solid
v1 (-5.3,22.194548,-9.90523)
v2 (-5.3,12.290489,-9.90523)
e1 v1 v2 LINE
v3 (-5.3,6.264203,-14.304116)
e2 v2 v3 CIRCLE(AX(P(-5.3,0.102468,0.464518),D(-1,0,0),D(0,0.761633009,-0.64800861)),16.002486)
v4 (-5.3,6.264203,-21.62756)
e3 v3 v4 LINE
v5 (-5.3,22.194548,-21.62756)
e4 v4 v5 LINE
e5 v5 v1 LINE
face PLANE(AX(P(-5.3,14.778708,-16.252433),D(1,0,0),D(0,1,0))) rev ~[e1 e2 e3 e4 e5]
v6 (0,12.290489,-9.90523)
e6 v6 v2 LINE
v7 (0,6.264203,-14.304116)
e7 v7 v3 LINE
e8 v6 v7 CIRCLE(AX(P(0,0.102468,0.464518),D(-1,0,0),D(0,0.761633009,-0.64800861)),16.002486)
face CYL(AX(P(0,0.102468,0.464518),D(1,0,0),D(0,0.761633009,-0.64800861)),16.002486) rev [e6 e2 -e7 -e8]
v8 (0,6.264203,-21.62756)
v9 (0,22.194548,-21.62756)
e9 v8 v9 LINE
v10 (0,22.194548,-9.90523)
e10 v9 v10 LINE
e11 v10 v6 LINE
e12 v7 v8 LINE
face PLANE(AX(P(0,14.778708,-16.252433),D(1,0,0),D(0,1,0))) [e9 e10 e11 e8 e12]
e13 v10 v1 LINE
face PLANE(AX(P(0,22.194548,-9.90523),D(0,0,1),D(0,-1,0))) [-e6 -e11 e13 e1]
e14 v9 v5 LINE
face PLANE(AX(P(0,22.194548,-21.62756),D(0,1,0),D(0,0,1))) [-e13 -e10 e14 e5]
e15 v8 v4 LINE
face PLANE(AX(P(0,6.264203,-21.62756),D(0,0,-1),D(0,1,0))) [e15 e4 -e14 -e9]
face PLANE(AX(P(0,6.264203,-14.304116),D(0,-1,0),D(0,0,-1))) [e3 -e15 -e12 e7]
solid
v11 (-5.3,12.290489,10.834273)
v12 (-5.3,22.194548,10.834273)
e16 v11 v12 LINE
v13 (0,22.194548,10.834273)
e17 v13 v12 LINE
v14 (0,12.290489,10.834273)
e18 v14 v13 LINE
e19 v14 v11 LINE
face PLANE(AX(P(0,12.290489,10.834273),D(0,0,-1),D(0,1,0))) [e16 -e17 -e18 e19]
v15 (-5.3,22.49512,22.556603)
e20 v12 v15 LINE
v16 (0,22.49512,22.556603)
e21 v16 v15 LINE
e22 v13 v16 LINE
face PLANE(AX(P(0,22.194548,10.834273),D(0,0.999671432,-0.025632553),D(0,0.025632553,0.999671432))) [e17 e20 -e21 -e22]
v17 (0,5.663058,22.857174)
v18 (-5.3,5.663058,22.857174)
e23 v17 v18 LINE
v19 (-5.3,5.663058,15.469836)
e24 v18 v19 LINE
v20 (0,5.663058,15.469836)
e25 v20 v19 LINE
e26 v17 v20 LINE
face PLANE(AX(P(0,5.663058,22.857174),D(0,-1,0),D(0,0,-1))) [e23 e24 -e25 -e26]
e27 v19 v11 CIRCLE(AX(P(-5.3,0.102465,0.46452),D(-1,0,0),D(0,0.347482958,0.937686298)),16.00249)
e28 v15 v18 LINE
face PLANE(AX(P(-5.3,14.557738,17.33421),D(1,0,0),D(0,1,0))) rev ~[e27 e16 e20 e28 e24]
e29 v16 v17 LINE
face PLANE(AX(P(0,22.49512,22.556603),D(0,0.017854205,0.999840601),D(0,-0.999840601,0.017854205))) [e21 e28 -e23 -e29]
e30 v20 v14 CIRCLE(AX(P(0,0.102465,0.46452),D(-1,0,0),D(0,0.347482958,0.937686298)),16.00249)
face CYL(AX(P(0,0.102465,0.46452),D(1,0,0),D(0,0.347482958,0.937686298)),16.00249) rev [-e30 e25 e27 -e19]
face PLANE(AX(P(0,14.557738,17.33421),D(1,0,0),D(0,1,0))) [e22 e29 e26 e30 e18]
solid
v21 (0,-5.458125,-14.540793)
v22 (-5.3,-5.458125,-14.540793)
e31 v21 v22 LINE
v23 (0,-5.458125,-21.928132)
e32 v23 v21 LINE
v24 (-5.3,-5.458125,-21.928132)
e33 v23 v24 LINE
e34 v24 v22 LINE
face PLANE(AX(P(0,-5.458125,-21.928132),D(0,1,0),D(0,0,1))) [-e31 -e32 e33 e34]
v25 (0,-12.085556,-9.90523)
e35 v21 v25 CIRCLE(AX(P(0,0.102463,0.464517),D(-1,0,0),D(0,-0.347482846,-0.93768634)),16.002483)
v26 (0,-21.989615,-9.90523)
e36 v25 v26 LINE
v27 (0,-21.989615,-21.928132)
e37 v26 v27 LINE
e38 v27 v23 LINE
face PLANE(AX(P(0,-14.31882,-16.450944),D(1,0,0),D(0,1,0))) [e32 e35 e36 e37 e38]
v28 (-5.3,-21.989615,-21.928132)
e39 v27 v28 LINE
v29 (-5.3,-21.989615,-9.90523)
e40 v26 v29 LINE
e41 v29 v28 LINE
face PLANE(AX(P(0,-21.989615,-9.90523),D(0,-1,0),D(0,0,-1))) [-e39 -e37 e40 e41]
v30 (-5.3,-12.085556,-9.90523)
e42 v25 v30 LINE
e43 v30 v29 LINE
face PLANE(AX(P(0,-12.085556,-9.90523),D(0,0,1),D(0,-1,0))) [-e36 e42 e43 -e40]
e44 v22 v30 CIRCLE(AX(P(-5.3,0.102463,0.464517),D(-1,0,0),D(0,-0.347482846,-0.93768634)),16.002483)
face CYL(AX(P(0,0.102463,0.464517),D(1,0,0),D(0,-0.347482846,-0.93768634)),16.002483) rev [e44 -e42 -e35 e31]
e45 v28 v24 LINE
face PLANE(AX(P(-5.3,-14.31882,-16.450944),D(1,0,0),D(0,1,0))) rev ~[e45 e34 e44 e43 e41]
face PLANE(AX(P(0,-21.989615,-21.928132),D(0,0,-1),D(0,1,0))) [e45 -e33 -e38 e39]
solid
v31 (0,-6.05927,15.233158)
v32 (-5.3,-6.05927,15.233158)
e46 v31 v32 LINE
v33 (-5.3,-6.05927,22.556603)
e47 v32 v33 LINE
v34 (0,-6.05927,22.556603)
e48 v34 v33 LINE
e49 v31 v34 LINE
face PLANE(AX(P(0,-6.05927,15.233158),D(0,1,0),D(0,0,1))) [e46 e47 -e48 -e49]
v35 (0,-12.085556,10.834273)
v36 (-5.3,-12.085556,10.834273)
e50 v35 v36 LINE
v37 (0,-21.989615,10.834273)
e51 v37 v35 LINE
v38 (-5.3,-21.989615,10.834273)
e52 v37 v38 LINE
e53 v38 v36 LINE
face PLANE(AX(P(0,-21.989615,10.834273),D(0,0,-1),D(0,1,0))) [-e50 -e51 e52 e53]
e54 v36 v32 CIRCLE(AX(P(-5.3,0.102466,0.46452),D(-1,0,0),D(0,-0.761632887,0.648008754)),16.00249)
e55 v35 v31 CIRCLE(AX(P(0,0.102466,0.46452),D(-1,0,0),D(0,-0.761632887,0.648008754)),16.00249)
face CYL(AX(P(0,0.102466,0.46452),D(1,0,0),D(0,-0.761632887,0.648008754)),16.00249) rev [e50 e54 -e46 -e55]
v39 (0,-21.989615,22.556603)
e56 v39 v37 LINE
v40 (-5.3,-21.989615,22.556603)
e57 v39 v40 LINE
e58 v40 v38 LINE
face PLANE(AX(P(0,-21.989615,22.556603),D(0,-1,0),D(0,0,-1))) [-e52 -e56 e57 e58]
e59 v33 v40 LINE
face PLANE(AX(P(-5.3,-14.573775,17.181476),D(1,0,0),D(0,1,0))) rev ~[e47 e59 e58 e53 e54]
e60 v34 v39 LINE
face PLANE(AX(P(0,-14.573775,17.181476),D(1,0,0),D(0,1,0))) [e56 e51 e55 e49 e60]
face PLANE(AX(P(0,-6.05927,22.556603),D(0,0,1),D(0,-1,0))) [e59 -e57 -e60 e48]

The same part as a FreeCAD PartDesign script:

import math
import FreeCAD as App
import Part
import Sketcher

doc = App.newDocument("Part")
body = doc.addObject("PartDesign::Body", "Body")
body.AllowCompound = True

# Sketch on YZ plane
sketch1 = body.newObject("Sketcher::SketchObject", "Sketch")
sketch1.AttachmentSupport = (doc.getObject("YZ_Plane"), [""])
sketch1.MapMode = "FlatFace"
sketch1.addGeometry([
    Part.ArcOfCircle(Part.Circle(App.Vector(0.102466, 0.46452, 0), App.Vector(0, 0, 1), 16.00249), math.radians(112.646758), math.radians(139.608362)),  # 0
    Part.LineSegment(App.Vector(-6.05927, 15.233158, 0), App.Vector(-6.05927, 22.556603, 0)),  # 1
    Part.LineSegment(App.Vector(-6.05927, 22.556603, 0), App.Vector(-21.989615, 22.556603, 0)),  # 2
    Part.LineSegment(App.Vector(-21.989615, 22.556603, 0), App.Vector(-21.989615, 10.834273, 0)),  # 3
    Part.LineSegment(App.Vector(-21.989615, 10.834273, 0), App.Vector(-12.085556, 10.834273, 0)),  # 4
    Part.ArcOfCircle(Part.Circle(App.Vector(0.102465, 0.46452, 0), App.Vector(0, 0, 1), 16.00249), math.radians(40.391634), math.radians(69.666561)),  # 5
    Part.LineSegment(App.Vector(12.290489, 10.834273, 0), App.Vector(22.194548, 10.834273, 0)),  # 6
    Part.LineSegment(App.Vector(22.194548, 10.834273, 0), App.Vector(22.49512, 22.556603, 0)),  # 7
    Part.LineSegment(App.Vector(22.49512, 22.556603, 0), App.Vector(5.663058, 22.857174, 0)),  # 8
    Part.LineSegment(App.Vector(5.663058, 22.857174, 0), App.Vector(5.663058, 15.469836, 0)),  # 9
    Part.LineSegment(App.Vector(22.194548, -9.90523, 0), App.Vector(12.290489, -9.90523, 0)),  # 10
    Part.ArcOfCircle(Part.Circle(App.Vector(0.102468, 0.464518, 0), App.Vector(0, 0, 1), 16.002486), math.radians(-67.35324), math.radians(-40.391627)),  # 11
    Part.LineSegment(App.Vector(6.264203, -14.304116, 0), App.Vector(6.264203, -21.62756, 0)),  # 12
    Part.LineSegment(App.Vector(6.264203, -21.62756, 0), App.Vector(22.194548, -21.62756, 0)),  # 13
    Part.LineSegment(App.Vector(22.194548, -21.62756, 0), App.Vector(22.194548, -9.90523, 0)),  # 14
    Part.LineSegment(App.Vector(-5.458125, -21.928132, 0), App.Vector(-5.458125, -14.540793, 0)),  # 15
    Part.ArcOfCircle(Part.Circle(App.Vector(0.102463, 0.464517, 0), App.Vector(0, 0, 1), 16.002483), math.radians(-139.608373), math.radians(-110.333432)),  # 16
    Part.LineSegment(App.Vector(-12.085556, -9.90523, 0), App.Vector(-21.989615, -9.90523, 0)),  # 17
    Part.LineSegment(App.Vector(-21.989615, -9.90523, 0), App.Vector(-21.989615, -21.928132, 0)),  # 18
    Part.LineSegment(App.Vector(-21.989615, -21.928132, 0), App.Vector(-5.458125, -21.928132, 0)),  # 19
], False)
sketch1.addConstraint([
    Sketcher.Constraint("Coincident", 0, 1, 1, 1),
    Sketcher.Constraint("Coincident", 1, 2, 2, 1),
    Sketcher.Constraint("Coincident", 2, 2, 3, 1),
    Sketcher.Constraint("Coincident", 3, 2, 4, 1),
    Sketcher.Constraint("Coincident", 4, 2, 0, 2),
    Sketcher.Constraint("Coincident", 5, 1, 6, 1),
    Sketcher.Constraint("Coincident", 6, 2, 7, 1),
    Sketcher.Constraint("Coincident", 7, 2, 8, 1),
    Sketcher.Constraint("Coincident", 8, 2, 9, 1),
    Sketcher.Constraint("Coincident", 9, 2, 5, 2),
    Sketcher.Constraint("Coincident", 10, 2, 11, 2),
    Sketcher.Constraint("Coincident", 11, 1, 12, 1),
    Sketcher.Constraint("Coincident", 12, 2, 13, 1),
    Sketcher.Constraint("Coincident", 13, 2, 14, 1),
    Sketcher.Constraint("Coincident", 14, 2, 10, 1),
    Sketcher.Constraint("Coincident", 15, 2, 16, 2),
    Sketcher.Constraint("Coincident", 16, 1, 17, 1),
    Sketcher.Constraint("Coincident", 17, 2, 18, 1),
    Sketcher.Constraint("Coincident", 18, 2, 19, 1),
    Sketcher.Constraint("Coincident", 19, 2, 15, 1),
    Sketcher.Constraint("Vertical", 1),
    Sketcher.Constraint("Horizontal", 2),
    Sketcher.Constraint("Vertical", 3),
    Sketcher.Constraint("Horizontal", 4),
    Sketcher.Constraint("Horizontal", 6),
    Sketcher.Constraint("Vertical", 9),
    Sketcher.Constraint("Horizontal", 10),
    Sketcher.Constraint("Vertical", 12),
    Sketcher.Constraint("Horizontal", 13),
    Sketcher.Constraint("Vertical", 14),
    Sketcher.Constraint("Vertical", 15),
    Sketcher.Constraint("Horizontal", 17),
    Sketcher.Constraint("Vertical", 18),
    Sketcher.Constraint("Horizontal", 19),
    Sketcher.Constraint("Coincident", 5, 3, 0, 3),
    Sketcher.Constraint("Coincident", 11, 3, 0, 3),
    Sketcher.Constraint("Coincident", 16, 3, 0, 3),
    Sketcher.Constraint("Equal", 0, 5),
    Sketcher.Constraint("Horizontal", 4, 2, 5, 1),
    Sketcher.Constraint("Horizontal", 2, 2, 7, 2),
    Sketcher.Constraint("Horizontal", 14, 2, 16, 1),
    Sketcher.Constraint("Vertical", 5, 1, 10, 2),
    Sketcher.Constraint("Vertical", 6, 2, 13, 2),
    Sketcher.Constraint("Vertical", 4, 2, 16, 1),
    Sketcher.Constraint("Vertical", 3, 2, 17, 2),
    Sketcher.Constraint("Equal", 4, 6),
    Sketcher.Constraint("Equal", 2, 13),
    Sketcher.Constraint("Equal", 1, 12),
    Sketcher.Constraint("Equal", 3, 14),
    Sketcher.Constraint("Equal", 9, 15),
    Sketcher.Constraint("Radius", 0, 16.00249),
    Sketcher.Constraint("DistanceX", 4, 1, 4, 2, 9.904059),
    Sketcher.Constraint("DistanceX", 19, 1, 19, 2, 16.53149),
    Sketcher.Constraint("DistanceY", 3, 2, 3, 1, 11.72233),
    Sketcher.Constraint("DistanceY", 15, 1, 15, 2, 7.387339),
    Sketcher.Constraint("DistanceY", 5, 1, 8, 2, 12.022901),
    Sketcher.Constraint("DistanceY", 18, 2, 16, 1, 12.022902),
    Sketcher.Constraint("DistanceX", 2, 2, 2, 1, 15.930345),
    Sketcher.Constraint("DistanceY", -1, 1, 0, 3, 0.46452),
    Sketcher.Constraint("DistanceX", 0, 1, -1, 1, 6.05927),
    Sketcher.Constraint("DistanceX", -1, 1, 7, 2, 22.49512),
])
pad1 = body.newObject("PartDesign::Pad", "Pad")
pad1.Profile = sketch1
pad1.Length = 5.3
pad1.Reversed = True

doc.recompute()
